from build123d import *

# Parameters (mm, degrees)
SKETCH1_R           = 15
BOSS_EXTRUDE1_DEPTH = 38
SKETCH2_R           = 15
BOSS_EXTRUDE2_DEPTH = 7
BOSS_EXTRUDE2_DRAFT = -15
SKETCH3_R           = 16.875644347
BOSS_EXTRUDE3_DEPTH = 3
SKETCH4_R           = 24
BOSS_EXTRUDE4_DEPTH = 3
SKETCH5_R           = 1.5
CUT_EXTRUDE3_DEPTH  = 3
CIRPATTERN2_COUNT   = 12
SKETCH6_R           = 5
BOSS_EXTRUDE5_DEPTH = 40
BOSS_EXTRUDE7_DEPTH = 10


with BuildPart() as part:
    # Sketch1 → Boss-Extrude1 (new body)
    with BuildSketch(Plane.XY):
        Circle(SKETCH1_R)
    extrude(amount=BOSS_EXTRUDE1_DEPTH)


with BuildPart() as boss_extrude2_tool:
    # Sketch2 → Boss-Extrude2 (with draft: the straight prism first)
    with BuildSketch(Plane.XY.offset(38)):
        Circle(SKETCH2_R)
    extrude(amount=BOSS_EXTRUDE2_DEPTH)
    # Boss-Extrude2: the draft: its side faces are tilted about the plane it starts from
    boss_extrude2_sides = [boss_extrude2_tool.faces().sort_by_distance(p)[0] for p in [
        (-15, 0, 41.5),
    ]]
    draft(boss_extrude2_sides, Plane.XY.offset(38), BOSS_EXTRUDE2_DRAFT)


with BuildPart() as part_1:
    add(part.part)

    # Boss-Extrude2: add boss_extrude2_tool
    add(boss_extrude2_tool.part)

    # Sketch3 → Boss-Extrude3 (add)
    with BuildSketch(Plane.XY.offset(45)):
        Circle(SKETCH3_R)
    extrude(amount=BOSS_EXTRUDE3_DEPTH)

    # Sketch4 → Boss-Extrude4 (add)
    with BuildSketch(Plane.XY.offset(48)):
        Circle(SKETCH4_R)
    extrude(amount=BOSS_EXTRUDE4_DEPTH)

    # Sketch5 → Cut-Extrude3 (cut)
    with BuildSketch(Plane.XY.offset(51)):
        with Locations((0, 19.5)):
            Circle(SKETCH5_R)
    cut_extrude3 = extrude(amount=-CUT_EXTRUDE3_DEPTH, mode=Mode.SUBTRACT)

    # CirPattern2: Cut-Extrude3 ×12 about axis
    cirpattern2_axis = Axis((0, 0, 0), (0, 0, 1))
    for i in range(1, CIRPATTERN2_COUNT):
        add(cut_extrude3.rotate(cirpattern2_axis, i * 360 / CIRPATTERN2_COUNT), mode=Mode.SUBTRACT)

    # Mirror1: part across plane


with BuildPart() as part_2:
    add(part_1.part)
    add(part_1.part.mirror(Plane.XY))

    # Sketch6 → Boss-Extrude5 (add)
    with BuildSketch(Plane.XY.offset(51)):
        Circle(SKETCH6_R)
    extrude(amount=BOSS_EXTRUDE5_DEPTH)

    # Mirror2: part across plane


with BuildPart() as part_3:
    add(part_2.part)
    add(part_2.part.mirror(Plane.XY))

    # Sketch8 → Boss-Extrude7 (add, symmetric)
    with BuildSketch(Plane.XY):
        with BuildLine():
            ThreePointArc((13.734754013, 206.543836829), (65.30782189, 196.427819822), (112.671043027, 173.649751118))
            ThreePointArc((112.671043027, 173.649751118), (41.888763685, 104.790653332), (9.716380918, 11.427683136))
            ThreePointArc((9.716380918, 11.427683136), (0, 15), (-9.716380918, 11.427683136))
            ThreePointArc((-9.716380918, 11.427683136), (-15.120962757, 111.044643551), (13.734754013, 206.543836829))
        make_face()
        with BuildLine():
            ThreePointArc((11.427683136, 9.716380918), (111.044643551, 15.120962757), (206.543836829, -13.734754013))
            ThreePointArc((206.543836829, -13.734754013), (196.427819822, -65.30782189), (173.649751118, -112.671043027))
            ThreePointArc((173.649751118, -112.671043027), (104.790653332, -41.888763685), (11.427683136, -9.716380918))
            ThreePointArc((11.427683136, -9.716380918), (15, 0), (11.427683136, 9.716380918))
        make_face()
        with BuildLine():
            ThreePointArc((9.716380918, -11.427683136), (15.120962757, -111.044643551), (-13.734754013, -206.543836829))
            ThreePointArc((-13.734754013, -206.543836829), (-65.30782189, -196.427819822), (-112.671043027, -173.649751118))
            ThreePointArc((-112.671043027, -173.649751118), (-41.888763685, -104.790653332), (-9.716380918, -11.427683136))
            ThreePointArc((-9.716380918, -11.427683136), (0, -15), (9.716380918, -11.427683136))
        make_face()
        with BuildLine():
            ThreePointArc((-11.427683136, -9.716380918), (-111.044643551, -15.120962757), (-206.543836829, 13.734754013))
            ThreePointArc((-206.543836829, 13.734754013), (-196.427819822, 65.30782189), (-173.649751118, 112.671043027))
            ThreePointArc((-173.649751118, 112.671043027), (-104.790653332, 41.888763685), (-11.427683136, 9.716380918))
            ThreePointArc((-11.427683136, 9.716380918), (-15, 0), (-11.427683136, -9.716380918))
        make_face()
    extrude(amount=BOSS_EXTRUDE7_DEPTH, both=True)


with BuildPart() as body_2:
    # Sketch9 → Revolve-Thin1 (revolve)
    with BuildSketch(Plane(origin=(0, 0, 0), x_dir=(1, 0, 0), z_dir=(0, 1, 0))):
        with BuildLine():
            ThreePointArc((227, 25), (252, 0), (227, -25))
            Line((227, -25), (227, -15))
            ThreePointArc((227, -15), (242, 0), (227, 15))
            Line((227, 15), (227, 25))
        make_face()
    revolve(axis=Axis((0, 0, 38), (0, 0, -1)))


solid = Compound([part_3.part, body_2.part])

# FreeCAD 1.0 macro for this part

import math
import FreeCAD as App
import Part
import Sketcher
from FreeCAD import Vector
Q = App.Units.Quantity


def faces_at(feature, points):
    """Names of the faces that lie closest to the given points."""
    faces = feature.Shape.Faces
    near = lambda p: min(range(len(faces)), key=lambda i: faces[i].distToShape(Part.Vertex(*p))[0])
    return sorted({f"Face{near(p) + 1}" for p in points})

doc = App.newDocument("Part")
params = doc.addObject("Spreadsheet::Sheet", "Params")
for row, (alias, value) in enumerate([
    ("sketch1_diameter", "30 mm"),
    ("pad1_length", "38 mm"),
    ("sketch2_diameter", "30 mm"),
    ("pad2_length", "7 mm"),
    ("draft_angle", "15 deg"),
    ("pad3_length", "3 mm"),
    ("sketch4_diameter", "48 mm"),
    ("pad4_length", "3 mm"),
    ("sketch5_diameter", "3 mm"),
    ("pocket1_length", "3 mm"),
    ("sketch6_diameter", "10 mm"),
    ("pad5_length", "40 mm"),
    ("sketch7_radius", "207 mm"),
    ("sketch7_radius2", "15 mm"),
    ("pad6_length", "20 mm"),
    ("sketch8_radius", "25 mm"),
    ("sketch8_radius2", "15 mm"),
    ("revolution_angle", "360 deg"),
], start=1):
    params.set(f"A{row}", alias)
    params.set(f"B{row}", "=" + value)
    params.setAlias(f"B{row}", alias)

body = doc.addObject("PartDesign::Body", "Body")

# Sketch on XY plane
sketch1 = body.newObject("Sketcher::SketchObject", "Sketch")
sketch1.AttachmentSupport = (doc.getObject("XY_Plane"), [""])
sketch1.MapMode = "FlatFace"
sketch1.addGeometry(Part.Circle(Vector(0, 0, 0), Vector(0, 0, 1), 15), False)
sketch1.addConstraint([
    Sketcher.Constraint("Coincident", 0, 3, -1, 1),
    Sketcher.Constraint("Diameter", 0, Q("30 mm")),
])
sketch1.setExpression("Constraints[1]", "Params.sketch1_diameter")
pad1 = body.newObject("PartDesign::Pad", "Pad")
pad1.Profile = sketch1
pad1.setExpression("Length", "Params.pad1_length")
body2 = doc.addObject("PartDesign::Body", "Body001")

# Sketch on XY plane
sketch2 = body2.newObject("Sketcher::SketchObject", "Sketch001")
sketch2.AttachmentSupport = (doc.getObject("XY_Plane001"), [""])
sketch2.MapMode = "FlatFace"
sketch2.AttachmentOffset = App.Placement(Vector(0, 0, 38), App.Rotation())
sketch2.addGeometry(Part.Circle(Vector(0, 0, 0), Vector(0, 0, 1), 15), False)
sketch2.addConstraint([
    Sketcher.Constraint("Coincident", 0, 3, -1, 1),
    Sketcher.Constraint("Diameter", 0, Q("30 mm")),
])
sketch2.setExpression("Constraints[1]", "Params.sketch2_diameter")
pad2 = body2.newObject("PartDesign::Pad", "Pad001")
pad2.Profile = sketch2
pad2.setExpression("Length", "Params.pad2_length")
doc.recompute()

datumplane = body2.newObject("PartDesign::Plane", "DatumPlane")
datumplane.AttachmentSupport = (doc.getObject("XY_Plane001"), [""])
datumplane.MapMode = "FlatFace"
datumplane.AttachmentOffset = App.Placement(Vector(0, 0, 38), App.Rotation())
draft = body2.newObject("PartDesign::Draft", "Draft")
draft.Base = (pad2, faces_at(pad2, [(-15, 0, 41.5)]))
draft.NeutralPlane = (datumplane, [""])
draft.setExpression("Angle", "Params.draft_angle")
draft.Reversed = True
doc.recompute()

boolean = body.newObject("PartDesign::Boolean", "Boolean")
boolean.Type = "Fuse"
boolean.addObjects([body2])

# Sketch on XY plane
sketch3 = body.newObject("Sketcher::SketchObject", "Sketch002")
sketch3.AttachmentSupport = (doc.getObject("XY_Plane"), [""])
sketch3.MapMode = "FlatFace"
sketch3.AttachmentOffset = App.Placement(Vector(0, 0, 45), App.Rotation())
sketch3.addGeometry(Part.Circle(Vector(0, 0, 0), Vector(0, 0, 1), 17), False)
sketch3.addConstraint([
    Sketcher.Constraint("Coincident", 0, 3, -1, 1),
    Sketcher.Constraint("Diameter", 0, Q("33.751289 mm")),
])
pad3 = body.newObject("PartDesign::Pad", "Pad002")
pad3.Profile = sketch3
pad3.setExpression("Length", "Params.pad3_length")

# Sketch on XY plane
sketch4 = body.newObject("Sketcher::SketchObject", "Sketch003")
sketch4.AttachmentSupport = (doc.getObject("XY_Plane"), [""])
sketch4.MapMode = "FlatFace"
sketch4.AttachmentOffset = App.Placement(Vector(0, 0, 48), App.Rotation())
sketch4.addGeometry(Part.Circle(Vector(0, 0, 0), Vector(0, 0, 1), 24), False)
sketch4.addConstraint([
    Sketcher.Constraint("Coincident", 0, 3, -1, 1),
    Sketcher.Constraint("Diameter", 0, Q("48 mm")),
])
sketch4.setExpression("Constraints[1]", "Params.sketch4_diameter")
pad4 = body.newObject("PartDesign::Pad", "Pad003")
pad4.Profile = sketch4
pad4.setExpression("Length", "Params.pad4_length")

# Sketch on XY plane
sketch5 = body.newObject("Sketcher::SketchObject", "Sketch004")
sketch5.AttachmentSupport = (doc.getObject("XY_Plane"), [""])
sketch5.MapMode = "FlatFace"
sketch5.AttachmentOffset = App.Placement(Vector(0, 0, 51), App.Rotation())
sketch5.addGeometry(Part.Circle(Vector(0, 19.5, 0), Vector(0, 0, 1), 1.5), False)
sketch5.addConstraint([
    Sketcher.Constraint("PointOnObject", 0, 3, -2),
    Sketcher.Constraint("Diameter", 0, Q("3 mm")),
    Sketcher.Constraint("DistanceY", -1, 1, 0, 3, Q("19.5 mm")),
])
sketch5.setExpression("Constraints[1]", "Params.sketch5_diameter")
pocket1 = body.newObject("PartDesign::Pocket", "Pocket")
pocket1.Profile = sketch5
pocket1.setExpression("Length", "Params.pocket1_length")
doc.recompute()

polarpattern = body.newObject("PartDesign::PolarPattern", "PolarPattern")
polarpattern.Originals = [pocket1]
polarpattern.Axis = (doc.getObject("Z_Axis"), [""])
polarpattern.Angle = 360
polarpattern.Occurrences = 12
body.Tip = polarpattern
body3 = doc.addObject("PartDesign::Body", "Body002")
doc.recompute()

body3.BaseFeature = body
doc.recompute()

mirroring = doc.addObject("Part::Mirroring", "Mirroring")
mirroring.Source = body
mirroring.Base = Vector(0, 0, 0)
mirroring.Normal = Vector(0, 0, 1)
body4 = doc.addObject("PartDesign::Body", "Body003")
body4.BaseFeature = mirroring
boolean2 = body3.newObject("PartDesign::Boolean", "Boolean001")
boolean2.Type = "Fuse"
boolean2.addObjects([body4])
doc.recompute()

# Sketch on XY plane
sketch6 = body3.newObject("Sketcher::SketchObject", "Sketch005")
sketch6.AttachmentSupport = (doc.getObject("XY_Plane002"), [""])
sketch6.MapMode = "FlatFace"
sketch6.AttachmentOffset = App.Placement(Vector(0, 0, 51), App.Rotation())
sketch6.addGeometry(Part.Circle(Vector(0, 0, 0), Vector(0, 0, 1), 5), False)
sketch6.addConstraint([
    Sketcher.Constraint("Coincident", 0, 3, -1, 1),
    Sketcher.Constraint("Diameter", 0, Q("10 mm")),
])
sketch6.setExpression("Constraints[1]", "Params.sketch6_diameter")
pad5 = body3.newObject("PartDesign::Pad", "Pad004")
pad5.Profile = sketch6
pad5.setExpression("Length", "Params.pad5_length")
body5 = doc.addObject("PartDesign::Body", "Body004")
doc.recompute()

body5.BaseFeature = body3
doc.recompute()

mirroring2 = doc.addObject("Part::Mirroring", "Mirroring001")
mirroring2.Source = body3
mirroring2.Base = Vector(0, 0, 0)
mirroring2.Normal = Vector(0, 0, 1)
body6 = doc.addObject("PartDesign::Body", "Body005")
body6.BaseFeature = mirroring2
boolean3 = body5.newObject("PartDesign::Boolean", "Boolean002")
boolean3.Type = "Fuse"
boolean3.addObjects([body6])
doc.recompute()

# Sketch on XY plane
sketch7 = body5.newObject("Sketcher::SketchObject", "Sketch006")
sketch7.AttachmentSupport = (doc.getObject("XY_Plane004"), [""])
sketch7.MapMode = "FlatFace"
sketch7.addGeometry([
    Part.ArcOfCircle(Part.Circle(Vector(0, 0, 0), Vector(0, 0, 1), 207), math.radians(57), math.radians(86)),  # 0
    Part.ArcOfCircle(Part.Circle(Vector(271, 77, 0), Vector(0, 0, 1), 288), math.radians(153), math.radians(193)),  # 1
    Part.ArcOfCircle(Part.Circle(Vector(0, 0, 0), Vector(0, 0, 1), 15), math.radians(50), math.radians(130)),  # 2
    Part.ArcOfCircle(Part.Circle(Vector(222, -9, 0), Vector(0, 0, 1), 213), math.radians(121), math.radians(174)),  # 3
    Part.ArcOfCircle(Part.Circle(Vector(77, -271, 0), Vector(0, 0, 1), 288), math.radians(63), math.radians(103)),  # 4
    Part.ArcOfCircle(Part.Circle(Vector(0, 0, 0), Vector(0, 0, 1), 15), math.radians(-40), math.radians(40)),  # 5
    Part.ArcOfCircle(Part.Circle(Vector(-9, -222, 0), Vector(0, 0, 1), 213), math.radians(31), math.radians(84)),  # 6
    Part.ArcOfCircle(Part.Circle(Vector(0, 0, 0), Vector(0, 0, 1), 207), math.radians(-33), math.radians(-4)),  # 7
    Part.ArcOfCircle(Part.Circle(Vector(-271, -77, 0), Vector(0, 0, 1), 288), math.radians(-27), math.radians(13)),  # 8
    Part.ArcOfCircle(Part.Circle(Vector(0, 0, 0), Vector(0, 0, 1), 15), math.radians(-130), math.radians(-50)),  # 9
    Part.ArcOfCircle(Part.Circle(Vector(-222, 9, 0), Vector(0, 0, 1), 213), math.radians(-59), math.radians(-6)),  # 10
    Part.ArcOfCircle(Part.Circle(Vector(0, 0, 0), Vector(0, 0, 1), 207), math.radians(-123), math.radians(-94)),  # 11
    Part.ArcOfCircle(Part.Circle(Vector(-77, 271, 0), Vector(0, 0, 1), 288), math.radians(-117), math.radians(-77)),  # 12
    Part.ArcOfCircle(Part.Circle(Vector(0, 0, 0), Vector(0, 0, 1), 15), math.radians(140), math.radians(220)),  # 13
    Part.ArcOfCircle(Part.Circle(Vector(9, 222, 0), Vector(0, 0, 1), 213), math.radians(-149), math.radians(-96)),  # 14
    Part.ArcOfCircle(Part.Circle(Vector(0, 0, 0), Vector(0, 0, 1), 207), math.radians(147), math.radians(176)),  # 15
], False)
sketch7.addConstraint([
    Sketcher.Constraint("Coincident", 0, 2, 1, 1),
    Sketcher.Constraint("Coincident", 1, 2, 2, 2),
    Sketcher.Constraint("Coincident", 2, 1, 3, 2),
    Sketcher.Constraint("Coincident", 3, 1, 0, 1),
    Sketcher.Constraint("Coincident", 4, 2, 5, 2),
    Sketcher.Constraint("Coincident", 5, 1, 6, 2),
    Sketcher.Constraint("Coincident", 6, 1, 7, 1),
    Sketcher.Constraint("Coincident", 7, 2, 4, 1),
    Sketcher.Constraint("Coincident", 8, 2, 9, 2),
    Sketcher.Constraint("Coincident", 9, 1, 10, 2),
    Sketcher.Constraint("Coincident", 10, 1, 11, 1),
    Sketcher.Constraint("Coincident", 11, 2, 8, 1),
    Sketcher.Constraint("Coincident", 12, 2, 13, 2),
    Sketcher.Constraint("Coincident", 13, 1, 14, 2),
    Sketcher.Constraint("Coincident", 14, 1, 15, 1),
    Sketcher.Constraint("Coincident", 15, 2, 12, 1),
    Sketcher.Constraint("Coincident", 0, 3, -1, 1),
    Sketcher.Constraint("Coincident", 2, 3, -1, 1),
    Sketcher.Constraint("Coincident", 5, 3, -1, 1),
    Sketcher.Constraint("Coincident", 7, 3, -1, 1),
    Sketcher.Constraint("Coincident", 9, 3, -1, 1),
    Sketcher.Constraint("Coincident", 11, 3, -1, 1),
    Sketcher.Constraint("Coincident", 13, 3, -1, 1),
    Sketcher.Constraint("Coincident", 15, 3, -1, 1),
    Sketcher.Constraint("Equal", 1, 4),
    Sketcher.Constraint("Equal", 2, 5),
    Sketcher.Constraint("Equal", 3, 6),
    Sketcher.Constraint("Equal", 0, 7),
    Sketcher.Constraint("Equal", 4, 8),
    Sketcher.Constraint("Equal", 5, 9),
    Sketcher.Constraint("Equal", 6, 10),
    Sketcher.Constraint("Equal", 7, 11),
    Sketcher.Constraint("Equal", 8, 12),
    Sketcher.Constraint("Equal", 9, 13),
    Sketcher.Constraint("Equal", 10, 14),
    Sketcher.Constraint("Equal", 11, 15),
    Sketcher.Constraint("Symmetric", 1, 3, 8, 3, -1, 1),
    Sketcher.Constraint("Symmetric", 3, 3, 10, 3, -1, 1),
    Sketcher.Constraint("Symmetric", 4, 3, 12, 3, -1, 1),
    Sketcher.Constraint("Symmetric", 6, 3, 14, 3, -1, 1),
    Sketcher.Constraint("Horizontal", 1, 2, 2, 1),
    Sketcher.Constraint("Horizontal", 5, 1, 12, 2),
    Sketcher.Constraint("Radius", 0, Q("207 mm")),
    Sketcher.Constraint("Radius", 2, Q("15 mm")),
    Sketcher.Constraint("Radius", 1, Q("288.428025 mm")),
    Sketcher.Constraint("Radius", 3, Q("213.248794 mm")),
    Sketcher.Constraint("DistanceX", 14, 3, 3, 1, Q("103.193 mm")),
    Sketcher.Constraint("DistanceY", 6, 1, 3, 3, Q("103.193 mm")),
    Sketcher.Constraint("DistanceX", -1, 1, 1, 3, Q("271.246079 mm")),
    Sketcher.Constraint("DistanceX", -1, 1, 3, 3, Q("221.93796 mm")),
    Sketcher.Constraint("DistanceY", 4, 3, -1, 1, Q("271.246079 mm")),
    Sketcher.Constraint("DistanceY", 6, 3, -1, 1, Q("221.93796 mm")),
])
sketch7.setExpression("Constraints[42]", "Params.sketch7_radius")
sketch7.setExpression("Constraints[43]", "Params.sketch7_radius2")
pad6 = body5.newObject("PartDesign::Pad", "Pad005")
pad6.Profile = sketch7
pad6.setExpression("Length", "Params.pad6_length")
pad6.Midplane = True
body7 = doc.addObject("PartDesign::Body", "Body006")

# Sketch on XZ plane
sketch8 = body7.newObject("Sketcher::SketchObject", "Sketch007")
sketch8.AttachmentSupport = (doc.getObject("XZ_Plane006"), [""])
sketch8.MapMode = "FlatFace"
sketch8.addGeometry([
    Part.ArcOfCircle(Part.Circle(Vector(227, 0, 0), Vector(0, 0, 1), 25), math.radians(-90), math.radians(90)),
    Part.LineSegment(Vector(227, -25, 0), Vector(227, -15, 0)),
    Part.ArcOfCircle(Part.Circle(Vector(227, 0, 0), Vector(0, 0, 1), 15), math.radians(-90), math.radians(90)),
    Part.LineSegment(Vector(227, 15, 0), Vector(227, 25, 0)),
], False)
sketch8.addConstraint([
    Sketcher.Constraint("Coincident", 0, 1, 1, 1),
    Sketcher.Constraint("Coincident", 1, 2, 2, 1),
    Sketcher.Constraint("Coincident", 2, 2, 3, 1),
    Sketcher.Constraint("Coincident", 3, 2, 0, 2),
    Sketcher.Constraint("Vertical", 1),
    Sketcher.Constraint("Vertical", 3),
    Sketcher.Constraint("Coincident", 2, 3, 0, 3),
    Sketcher.Constraint("Symmetric", 1, 2, 2, 2, -1),
    Sketcher.Constraint("Vertical", 2, 3, 0, 1),
    Sketcher.Constraint("Radius", 0, Q("25 mm")),
    Sketcher.Constraint("Radius", 2, Q("15 mm")),
    Sketcher.Constraint("DistanceX", -1, 1, 0, 3, Q("227 mm")),
])
sketch8.setExpression("Constraints[9]", "Params.sketch8_radius")
sketch8.setExpression("Constraints[10]", "Params.sketch8_radius2")
revolution = body7.newObject("PartDesign::Revolution", "Revolution")
revolution.Profile = sketch8
revolution.ReferenceAxis = (sketch8, ["V_Axis"])
revolution.setExpression("Angle", "Params.revolution_angle")
mirroring.Visibility = False
mirroring2.Visibility = False

doc.recompute()
